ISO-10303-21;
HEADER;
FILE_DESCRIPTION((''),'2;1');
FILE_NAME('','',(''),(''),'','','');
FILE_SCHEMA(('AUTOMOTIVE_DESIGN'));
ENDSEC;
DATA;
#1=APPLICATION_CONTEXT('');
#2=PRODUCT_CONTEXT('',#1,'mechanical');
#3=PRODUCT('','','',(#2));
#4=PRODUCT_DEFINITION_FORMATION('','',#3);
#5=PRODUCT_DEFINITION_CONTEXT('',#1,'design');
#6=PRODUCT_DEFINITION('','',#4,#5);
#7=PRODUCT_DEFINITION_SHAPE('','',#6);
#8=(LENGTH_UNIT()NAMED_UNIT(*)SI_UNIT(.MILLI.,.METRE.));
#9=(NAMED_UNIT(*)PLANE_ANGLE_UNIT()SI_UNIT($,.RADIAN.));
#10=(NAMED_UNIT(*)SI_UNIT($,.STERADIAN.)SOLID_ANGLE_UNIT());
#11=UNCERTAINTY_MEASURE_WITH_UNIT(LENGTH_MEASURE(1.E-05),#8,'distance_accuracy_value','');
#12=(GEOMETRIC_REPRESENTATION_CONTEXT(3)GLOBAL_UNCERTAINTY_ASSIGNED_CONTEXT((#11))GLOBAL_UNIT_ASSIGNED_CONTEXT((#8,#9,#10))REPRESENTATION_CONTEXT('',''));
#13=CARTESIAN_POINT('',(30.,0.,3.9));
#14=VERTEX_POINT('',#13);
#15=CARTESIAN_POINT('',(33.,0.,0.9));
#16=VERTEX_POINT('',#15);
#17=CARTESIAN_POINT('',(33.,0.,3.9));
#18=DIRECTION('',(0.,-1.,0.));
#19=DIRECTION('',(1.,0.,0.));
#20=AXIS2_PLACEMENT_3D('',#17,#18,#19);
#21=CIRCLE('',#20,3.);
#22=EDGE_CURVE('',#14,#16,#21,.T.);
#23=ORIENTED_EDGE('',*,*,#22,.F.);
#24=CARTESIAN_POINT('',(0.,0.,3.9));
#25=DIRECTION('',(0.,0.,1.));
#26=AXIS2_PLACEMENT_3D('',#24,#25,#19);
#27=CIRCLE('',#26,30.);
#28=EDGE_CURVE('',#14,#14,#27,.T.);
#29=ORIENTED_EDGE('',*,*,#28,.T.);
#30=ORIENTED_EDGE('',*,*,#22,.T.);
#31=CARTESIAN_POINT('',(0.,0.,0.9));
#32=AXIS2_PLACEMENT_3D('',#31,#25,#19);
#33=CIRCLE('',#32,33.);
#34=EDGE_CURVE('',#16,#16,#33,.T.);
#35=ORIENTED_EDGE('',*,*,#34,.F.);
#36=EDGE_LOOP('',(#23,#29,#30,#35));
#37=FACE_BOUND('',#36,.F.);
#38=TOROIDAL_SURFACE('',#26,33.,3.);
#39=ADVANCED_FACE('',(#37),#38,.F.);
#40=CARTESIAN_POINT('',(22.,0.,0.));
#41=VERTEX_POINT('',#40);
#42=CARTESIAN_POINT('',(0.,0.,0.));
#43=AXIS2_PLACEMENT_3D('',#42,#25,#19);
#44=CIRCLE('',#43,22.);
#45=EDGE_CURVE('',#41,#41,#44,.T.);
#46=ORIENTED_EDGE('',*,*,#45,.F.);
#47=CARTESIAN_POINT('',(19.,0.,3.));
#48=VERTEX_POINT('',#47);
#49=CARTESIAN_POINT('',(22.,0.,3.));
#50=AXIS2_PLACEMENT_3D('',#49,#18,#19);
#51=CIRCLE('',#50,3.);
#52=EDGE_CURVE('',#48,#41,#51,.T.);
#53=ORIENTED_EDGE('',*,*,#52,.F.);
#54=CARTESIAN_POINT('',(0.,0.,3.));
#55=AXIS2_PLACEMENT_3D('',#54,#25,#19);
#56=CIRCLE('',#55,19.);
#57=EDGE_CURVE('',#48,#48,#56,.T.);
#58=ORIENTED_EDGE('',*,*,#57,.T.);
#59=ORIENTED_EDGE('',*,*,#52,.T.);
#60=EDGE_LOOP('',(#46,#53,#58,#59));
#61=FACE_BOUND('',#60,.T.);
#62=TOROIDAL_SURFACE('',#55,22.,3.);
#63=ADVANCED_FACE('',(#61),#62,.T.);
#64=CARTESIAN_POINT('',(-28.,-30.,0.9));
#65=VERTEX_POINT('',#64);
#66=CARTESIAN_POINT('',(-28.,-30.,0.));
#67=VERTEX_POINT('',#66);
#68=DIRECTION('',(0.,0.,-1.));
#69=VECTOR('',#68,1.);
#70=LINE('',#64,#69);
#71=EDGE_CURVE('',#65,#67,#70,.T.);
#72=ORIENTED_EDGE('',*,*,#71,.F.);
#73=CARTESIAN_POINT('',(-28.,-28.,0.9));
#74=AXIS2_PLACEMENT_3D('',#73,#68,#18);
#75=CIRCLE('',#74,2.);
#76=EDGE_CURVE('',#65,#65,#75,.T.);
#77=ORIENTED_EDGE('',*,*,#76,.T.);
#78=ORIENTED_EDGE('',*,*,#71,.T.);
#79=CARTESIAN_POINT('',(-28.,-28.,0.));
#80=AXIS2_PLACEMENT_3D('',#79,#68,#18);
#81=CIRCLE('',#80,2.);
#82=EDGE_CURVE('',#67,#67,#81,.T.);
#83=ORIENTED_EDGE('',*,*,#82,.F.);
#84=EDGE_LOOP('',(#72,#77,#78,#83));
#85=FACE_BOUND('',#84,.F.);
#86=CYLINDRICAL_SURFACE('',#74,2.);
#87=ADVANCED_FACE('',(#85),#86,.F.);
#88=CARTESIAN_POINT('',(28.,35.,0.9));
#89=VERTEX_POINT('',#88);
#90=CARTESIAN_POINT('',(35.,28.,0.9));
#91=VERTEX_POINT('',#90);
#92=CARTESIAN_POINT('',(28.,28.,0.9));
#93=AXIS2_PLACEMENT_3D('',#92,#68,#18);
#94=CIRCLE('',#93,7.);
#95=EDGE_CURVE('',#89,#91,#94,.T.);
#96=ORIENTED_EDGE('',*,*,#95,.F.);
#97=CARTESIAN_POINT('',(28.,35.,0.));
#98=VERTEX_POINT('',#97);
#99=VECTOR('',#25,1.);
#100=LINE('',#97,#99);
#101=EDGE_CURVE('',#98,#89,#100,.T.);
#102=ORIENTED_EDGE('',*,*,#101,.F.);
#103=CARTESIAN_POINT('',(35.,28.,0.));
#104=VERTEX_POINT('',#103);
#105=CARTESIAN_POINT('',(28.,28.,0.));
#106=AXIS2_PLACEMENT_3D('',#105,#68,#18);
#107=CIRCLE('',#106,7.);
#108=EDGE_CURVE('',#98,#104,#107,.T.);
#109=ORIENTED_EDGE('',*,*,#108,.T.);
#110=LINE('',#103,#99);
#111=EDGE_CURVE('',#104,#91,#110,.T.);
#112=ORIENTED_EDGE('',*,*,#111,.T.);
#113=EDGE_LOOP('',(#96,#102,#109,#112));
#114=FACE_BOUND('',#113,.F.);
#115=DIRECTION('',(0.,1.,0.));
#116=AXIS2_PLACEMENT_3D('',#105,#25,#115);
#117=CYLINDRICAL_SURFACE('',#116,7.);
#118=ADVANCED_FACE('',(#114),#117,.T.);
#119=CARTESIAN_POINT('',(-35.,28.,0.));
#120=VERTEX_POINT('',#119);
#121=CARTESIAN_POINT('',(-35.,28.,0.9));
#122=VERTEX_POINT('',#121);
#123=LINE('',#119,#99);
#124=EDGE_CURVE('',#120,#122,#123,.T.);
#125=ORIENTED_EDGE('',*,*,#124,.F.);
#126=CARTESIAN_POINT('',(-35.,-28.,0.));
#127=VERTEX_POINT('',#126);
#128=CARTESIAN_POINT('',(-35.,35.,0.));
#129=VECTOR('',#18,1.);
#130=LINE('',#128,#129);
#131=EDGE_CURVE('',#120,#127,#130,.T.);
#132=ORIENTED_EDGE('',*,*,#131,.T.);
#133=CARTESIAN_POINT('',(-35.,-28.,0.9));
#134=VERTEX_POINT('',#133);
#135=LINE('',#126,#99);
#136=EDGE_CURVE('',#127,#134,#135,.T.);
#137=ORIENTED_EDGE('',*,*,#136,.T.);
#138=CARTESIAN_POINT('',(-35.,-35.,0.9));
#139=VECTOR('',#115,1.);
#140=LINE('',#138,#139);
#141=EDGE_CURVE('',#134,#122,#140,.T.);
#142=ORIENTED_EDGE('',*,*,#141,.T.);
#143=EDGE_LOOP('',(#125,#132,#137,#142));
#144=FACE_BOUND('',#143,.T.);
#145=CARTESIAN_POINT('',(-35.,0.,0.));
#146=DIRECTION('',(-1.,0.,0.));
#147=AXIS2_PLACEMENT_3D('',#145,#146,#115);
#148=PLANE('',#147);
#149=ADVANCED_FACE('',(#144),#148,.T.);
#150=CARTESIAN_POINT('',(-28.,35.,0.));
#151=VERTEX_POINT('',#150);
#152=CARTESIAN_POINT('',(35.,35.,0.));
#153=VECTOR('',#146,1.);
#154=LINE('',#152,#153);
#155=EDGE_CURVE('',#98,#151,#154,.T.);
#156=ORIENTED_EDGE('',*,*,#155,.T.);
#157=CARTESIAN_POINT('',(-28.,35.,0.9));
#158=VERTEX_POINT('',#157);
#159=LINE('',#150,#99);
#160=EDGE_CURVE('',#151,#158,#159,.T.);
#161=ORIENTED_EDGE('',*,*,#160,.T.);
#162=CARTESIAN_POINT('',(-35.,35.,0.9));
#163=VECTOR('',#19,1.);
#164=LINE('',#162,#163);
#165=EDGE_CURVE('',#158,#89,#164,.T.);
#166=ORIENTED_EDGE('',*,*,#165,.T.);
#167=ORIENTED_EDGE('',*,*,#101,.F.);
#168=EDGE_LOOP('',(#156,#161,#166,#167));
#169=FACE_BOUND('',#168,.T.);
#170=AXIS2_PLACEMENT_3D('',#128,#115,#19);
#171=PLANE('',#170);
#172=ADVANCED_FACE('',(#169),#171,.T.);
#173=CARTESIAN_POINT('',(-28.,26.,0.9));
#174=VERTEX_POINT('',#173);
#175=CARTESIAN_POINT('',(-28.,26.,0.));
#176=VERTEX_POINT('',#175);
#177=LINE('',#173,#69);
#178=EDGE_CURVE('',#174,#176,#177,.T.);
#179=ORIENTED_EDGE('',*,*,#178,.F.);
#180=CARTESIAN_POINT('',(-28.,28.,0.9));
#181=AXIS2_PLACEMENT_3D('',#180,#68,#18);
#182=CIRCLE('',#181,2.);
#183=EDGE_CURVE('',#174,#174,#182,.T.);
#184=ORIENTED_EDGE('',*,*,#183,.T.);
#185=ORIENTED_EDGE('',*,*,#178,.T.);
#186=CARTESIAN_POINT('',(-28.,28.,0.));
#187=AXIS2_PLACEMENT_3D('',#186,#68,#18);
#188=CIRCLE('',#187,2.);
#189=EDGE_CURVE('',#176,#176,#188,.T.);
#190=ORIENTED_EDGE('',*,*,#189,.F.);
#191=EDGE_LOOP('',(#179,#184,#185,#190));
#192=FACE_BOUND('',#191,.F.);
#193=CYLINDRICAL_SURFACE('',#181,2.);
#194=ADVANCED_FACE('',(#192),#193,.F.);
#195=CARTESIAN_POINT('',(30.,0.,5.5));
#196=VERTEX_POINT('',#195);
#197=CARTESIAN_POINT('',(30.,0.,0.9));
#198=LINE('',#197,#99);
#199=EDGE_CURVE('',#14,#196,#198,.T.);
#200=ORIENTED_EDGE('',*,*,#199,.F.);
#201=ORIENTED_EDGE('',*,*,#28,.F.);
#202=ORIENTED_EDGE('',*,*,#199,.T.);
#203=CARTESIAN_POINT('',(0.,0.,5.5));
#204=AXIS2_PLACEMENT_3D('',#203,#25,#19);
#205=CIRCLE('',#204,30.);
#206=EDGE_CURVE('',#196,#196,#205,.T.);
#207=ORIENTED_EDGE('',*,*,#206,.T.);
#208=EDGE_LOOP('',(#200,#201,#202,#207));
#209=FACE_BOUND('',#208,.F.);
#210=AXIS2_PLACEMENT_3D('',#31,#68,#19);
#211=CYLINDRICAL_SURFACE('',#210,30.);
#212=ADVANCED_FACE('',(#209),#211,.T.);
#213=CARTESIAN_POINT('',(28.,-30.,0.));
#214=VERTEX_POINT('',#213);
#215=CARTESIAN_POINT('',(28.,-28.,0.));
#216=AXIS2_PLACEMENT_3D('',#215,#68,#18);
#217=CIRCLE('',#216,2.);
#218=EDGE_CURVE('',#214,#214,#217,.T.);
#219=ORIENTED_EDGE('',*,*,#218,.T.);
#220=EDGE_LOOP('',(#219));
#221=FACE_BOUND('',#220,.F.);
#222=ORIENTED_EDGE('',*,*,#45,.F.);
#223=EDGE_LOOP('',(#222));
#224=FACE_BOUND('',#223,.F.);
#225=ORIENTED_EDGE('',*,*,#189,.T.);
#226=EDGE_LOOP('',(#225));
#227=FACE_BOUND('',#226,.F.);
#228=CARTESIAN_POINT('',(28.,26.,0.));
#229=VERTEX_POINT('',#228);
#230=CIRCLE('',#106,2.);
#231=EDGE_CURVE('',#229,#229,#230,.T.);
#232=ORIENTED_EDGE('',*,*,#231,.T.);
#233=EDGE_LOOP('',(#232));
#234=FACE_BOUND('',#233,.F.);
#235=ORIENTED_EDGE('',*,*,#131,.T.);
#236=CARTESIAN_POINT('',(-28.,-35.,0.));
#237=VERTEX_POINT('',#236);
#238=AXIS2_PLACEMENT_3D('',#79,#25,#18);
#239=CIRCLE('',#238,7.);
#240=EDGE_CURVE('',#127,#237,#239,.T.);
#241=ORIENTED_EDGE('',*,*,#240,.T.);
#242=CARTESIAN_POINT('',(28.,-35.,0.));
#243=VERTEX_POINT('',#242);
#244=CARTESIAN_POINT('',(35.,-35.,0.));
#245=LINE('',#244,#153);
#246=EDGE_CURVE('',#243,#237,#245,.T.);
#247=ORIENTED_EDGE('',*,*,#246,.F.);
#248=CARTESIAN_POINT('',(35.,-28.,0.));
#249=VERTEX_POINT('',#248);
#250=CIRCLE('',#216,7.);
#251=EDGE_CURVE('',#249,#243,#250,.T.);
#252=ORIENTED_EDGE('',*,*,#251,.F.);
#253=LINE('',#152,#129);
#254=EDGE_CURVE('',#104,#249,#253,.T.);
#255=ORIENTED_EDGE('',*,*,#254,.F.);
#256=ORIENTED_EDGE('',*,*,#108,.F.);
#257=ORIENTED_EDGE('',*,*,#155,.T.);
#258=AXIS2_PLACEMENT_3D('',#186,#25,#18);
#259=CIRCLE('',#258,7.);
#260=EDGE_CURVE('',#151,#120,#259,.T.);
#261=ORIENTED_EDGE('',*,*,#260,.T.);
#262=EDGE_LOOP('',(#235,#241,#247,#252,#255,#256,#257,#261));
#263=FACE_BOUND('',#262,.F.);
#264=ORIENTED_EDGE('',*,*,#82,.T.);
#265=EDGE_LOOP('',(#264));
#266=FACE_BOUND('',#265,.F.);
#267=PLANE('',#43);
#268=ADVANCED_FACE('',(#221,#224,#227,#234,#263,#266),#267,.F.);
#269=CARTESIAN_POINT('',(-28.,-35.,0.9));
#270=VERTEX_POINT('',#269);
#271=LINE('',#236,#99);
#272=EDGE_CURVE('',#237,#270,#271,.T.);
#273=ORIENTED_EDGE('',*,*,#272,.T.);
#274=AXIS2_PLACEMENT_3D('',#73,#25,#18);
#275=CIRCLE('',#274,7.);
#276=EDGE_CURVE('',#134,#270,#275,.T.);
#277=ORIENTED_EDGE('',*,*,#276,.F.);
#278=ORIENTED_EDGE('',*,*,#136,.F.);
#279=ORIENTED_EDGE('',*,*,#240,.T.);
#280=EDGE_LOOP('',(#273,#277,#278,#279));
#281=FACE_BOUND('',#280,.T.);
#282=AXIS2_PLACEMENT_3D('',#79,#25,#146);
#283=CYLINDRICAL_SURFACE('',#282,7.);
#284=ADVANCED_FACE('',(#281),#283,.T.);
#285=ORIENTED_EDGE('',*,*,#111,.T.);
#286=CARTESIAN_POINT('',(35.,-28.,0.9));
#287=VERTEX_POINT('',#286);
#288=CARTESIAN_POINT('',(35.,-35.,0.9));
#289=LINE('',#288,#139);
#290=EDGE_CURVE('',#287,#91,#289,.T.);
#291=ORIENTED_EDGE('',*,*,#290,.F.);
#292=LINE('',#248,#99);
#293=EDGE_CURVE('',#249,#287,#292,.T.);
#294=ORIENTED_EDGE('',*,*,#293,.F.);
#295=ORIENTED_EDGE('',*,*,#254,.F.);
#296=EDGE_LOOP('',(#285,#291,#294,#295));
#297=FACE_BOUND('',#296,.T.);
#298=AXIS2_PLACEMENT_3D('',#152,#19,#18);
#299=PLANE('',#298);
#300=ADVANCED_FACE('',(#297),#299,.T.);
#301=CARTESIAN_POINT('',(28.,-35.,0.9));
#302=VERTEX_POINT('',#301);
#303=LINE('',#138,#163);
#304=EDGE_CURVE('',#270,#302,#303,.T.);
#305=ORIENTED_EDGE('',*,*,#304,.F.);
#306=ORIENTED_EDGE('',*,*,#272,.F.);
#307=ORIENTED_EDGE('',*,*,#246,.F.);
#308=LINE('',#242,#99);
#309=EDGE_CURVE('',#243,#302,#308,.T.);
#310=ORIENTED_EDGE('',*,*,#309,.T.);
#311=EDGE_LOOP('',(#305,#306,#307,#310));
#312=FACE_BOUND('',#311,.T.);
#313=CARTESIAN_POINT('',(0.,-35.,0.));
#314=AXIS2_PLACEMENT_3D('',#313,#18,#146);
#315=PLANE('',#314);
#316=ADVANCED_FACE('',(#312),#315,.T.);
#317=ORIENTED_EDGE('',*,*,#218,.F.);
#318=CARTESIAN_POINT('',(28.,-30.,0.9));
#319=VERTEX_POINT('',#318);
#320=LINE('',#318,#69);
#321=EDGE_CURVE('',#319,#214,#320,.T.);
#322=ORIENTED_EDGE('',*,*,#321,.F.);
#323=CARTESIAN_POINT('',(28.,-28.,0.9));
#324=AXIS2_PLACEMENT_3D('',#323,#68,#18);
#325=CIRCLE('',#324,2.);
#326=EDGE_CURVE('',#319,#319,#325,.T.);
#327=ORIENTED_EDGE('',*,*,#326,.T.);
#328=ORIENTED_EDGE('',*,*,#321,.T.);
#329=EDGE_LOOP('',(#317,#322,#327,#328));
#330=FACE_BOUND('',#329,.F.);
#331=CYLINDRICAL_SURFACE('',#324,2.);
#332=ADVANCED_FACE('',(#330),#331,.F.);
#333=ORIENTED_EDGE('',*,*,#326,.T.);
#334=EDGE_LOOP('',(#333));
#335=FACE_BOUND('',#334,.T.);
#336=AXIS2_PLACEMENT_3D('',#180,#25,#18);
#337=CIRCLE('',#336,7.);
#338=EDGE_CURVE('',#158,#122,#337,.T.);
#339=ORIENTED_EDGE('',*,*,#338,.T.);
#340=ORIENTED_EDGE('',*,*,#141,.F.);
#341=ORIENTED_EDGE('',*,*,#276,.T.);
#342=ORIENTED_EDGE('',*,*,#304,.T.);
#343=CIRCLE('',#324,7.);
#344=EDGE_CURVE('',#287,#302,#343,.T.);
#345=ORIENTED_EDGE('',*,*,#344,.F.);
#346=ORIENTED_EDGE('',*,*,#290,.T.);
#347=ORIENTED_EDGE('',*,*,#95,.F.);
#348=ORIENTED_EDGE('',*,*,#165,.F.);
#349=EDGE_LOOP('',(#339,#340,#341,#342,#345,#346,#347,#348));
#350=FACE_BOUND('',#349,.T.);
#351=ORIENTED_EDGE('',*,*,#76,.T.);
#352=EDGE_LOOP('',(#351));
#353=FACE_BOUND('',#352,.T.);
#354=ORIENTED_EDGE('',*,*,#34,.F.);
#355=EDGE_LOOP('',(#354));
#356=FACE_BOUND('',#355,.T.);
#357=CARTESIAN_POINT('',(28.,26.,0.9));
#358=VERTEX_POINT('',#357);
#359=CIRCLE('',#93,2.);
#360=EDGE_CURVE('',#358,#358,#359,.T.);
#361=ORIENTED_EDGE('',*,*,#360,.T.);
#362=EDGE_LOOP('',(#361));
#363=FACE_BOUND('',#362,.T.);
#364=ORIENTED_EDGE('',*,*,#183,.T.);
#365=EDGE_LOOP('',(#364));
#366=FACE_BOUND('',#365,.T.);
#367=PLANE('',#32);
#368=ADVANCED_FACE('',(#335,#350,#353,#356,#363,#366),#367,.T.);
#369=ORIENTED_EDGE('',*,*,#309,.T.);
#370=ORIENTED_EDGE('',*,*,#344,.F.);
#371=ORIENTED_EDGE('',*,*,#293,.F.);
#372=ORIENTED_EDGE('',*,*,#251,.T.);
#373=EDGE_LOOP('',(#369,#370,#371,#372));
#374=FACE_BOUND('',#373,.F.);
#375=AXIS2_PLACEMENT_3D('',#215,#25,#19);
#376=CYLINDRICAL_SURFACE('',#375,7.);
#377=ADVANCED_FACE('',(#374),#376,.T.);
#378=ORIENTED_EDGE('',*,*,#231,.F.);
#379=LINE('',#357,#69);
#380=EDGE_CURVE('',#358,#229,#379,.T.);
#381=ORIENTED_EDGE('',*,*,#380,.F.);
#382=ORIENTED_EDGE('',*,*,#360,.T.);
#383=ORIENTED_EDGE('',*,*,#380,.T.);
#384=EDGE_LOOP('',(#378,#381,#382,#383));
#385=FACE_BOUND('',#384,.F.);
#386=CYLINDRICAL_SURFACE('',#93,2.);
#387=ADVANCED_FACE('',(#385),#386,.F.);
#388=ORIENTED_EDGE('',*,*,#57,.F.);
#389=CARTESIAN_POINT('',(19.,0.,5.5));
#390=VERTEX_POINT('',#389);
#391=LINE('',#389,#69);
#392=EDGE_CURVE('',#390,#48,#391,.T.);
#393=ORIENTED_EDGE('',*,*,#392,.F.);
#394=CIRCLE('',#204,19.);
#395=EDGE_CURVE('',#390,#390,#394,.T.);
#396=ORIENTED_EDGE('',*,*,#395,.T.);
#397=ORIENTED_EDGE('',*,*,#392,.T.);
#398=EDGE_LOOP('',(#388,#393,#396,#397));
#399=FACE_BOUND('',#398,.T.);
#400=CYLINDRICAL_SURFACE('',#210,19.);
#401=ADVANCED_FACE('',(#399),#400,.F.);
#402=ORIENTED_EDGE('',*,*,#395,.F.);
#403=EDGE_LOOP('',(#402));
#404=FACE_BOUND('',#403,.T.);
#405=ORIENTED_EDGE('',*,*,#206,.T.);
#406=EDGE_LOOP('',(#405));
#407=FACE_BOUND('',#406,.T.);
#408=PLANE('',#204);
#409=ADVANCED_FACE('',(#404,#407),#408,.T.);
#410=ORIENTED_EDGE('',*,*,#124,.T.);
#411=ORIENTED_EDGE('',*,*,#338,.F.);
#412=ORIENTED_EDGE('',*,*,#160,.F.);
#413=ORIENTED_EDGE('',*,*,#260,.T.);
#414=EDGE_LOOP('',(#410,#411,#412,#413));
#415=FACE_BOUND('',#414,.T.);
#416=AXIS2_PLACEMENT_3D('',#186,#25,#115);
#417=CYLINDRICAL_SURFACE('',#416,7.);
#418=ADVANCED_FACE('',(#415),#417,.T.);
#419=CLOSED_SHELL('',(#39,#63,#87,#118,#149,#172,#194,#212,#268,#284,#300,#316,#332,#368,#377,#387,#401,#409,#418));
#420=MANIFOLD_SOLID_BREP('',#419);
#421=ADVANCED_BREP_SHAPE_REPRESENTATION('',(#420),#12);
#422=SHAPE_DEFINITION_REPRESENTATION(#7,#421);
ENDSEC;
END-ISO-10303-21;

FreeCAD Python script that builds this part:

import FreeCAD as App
import Part
import Sketcher

V = App.Vector


def edges_at(feature, points):
    """Names of the edges that pass closest to the given points."""
    edges = feature.Shape.Edges
    near = lambda p: min(range(len(edges)), key=lambda i: edges[i].distToShape(Part.Vertex(*p))[0])
    return sorted({f"Edge{near(p) + 1}" for p in points})

doc = App.newDocument("Part")
body = doc.addObject("PartDesign::Body", "Body")

sketch1 = doc.addObject("Sketcher::SketchObject", "Sketch")
body.addObject(sketch1)
sketch1.AttachmentSupport = (doc.XY_Plane, [""])
sketch1.MapMode = "FlatFace"
sketch1.addGeometry([
    Part.LineSegment(V(-35, 35, 0), V(-35, -35, 0)),
    Part.LineSegment(V(-35, -35, 0), V(35, -35, 0)),
    Part.LineSegment(V(35, -35, 0), V(35, 35, 0)),
    Part.LineSegment(V(35, 35, 0), V(-35, 35, 0)),
    Part.Circle(V(0, 0, 0), V(0, 0, 1), 19),
], False)
sketch1.addConstraint([
    Sketcher.Constraint("Coincident", 0, 2, 1, 1),
    Sketcher.Constraint("Coincident", 1, 2, 2, 1),
    Sketcher.Constraint("Coincident", 2, 2, 3, 1),
    Sketcher.Constraint("Coincident", 3, 2, 0, 1),
    Sketcher.Constraint("Vertical", 0),
    Sketcher.Constraint("Horizontal", 1),
    Sketcher.Constraint("Vertical", 2),
    Sketcher.Constraint("Horizontal", 3),
    Sketcher.Constraint("Coincident", 4, 3, -1, 1),
    Sketcher.Constraint("Symmetric", 0, 2, 2, 2, -1, 1),
    Sketcher.Constraint("Equal", 3, 0),
    Sketcher.Constraint("Diameter", 4, 38.0),
    Sketcher.Constraint("DistanceX", 1, 1, 1, 2, 70.0),
])
pad1 = doc.addObject("PartDesign::Pad", "Pad")
body.addObject(pad1)
pad1.Profile = sketch1
pad1.Length = 0.9
doc.recompute()

fillet = doc.addObject("PartDesign::Fillet", "Fillet")
body.addObject(fillet)
fillet.Base = (pad1, edges_at(pad1, [
    (-35, -35, 0.45),
    (35, -35, 0.45),
    (-35, 35, 0.45),
    (35, 35, 0.45),
]))
fillet.Radius = 7

sketch2 = doc.addObject("Sketcher::SketchObject", "Sketch001")
body.addObject(sketch2)
sketch2.AttachmentSupport = (doc.XY_Plane, [""])
sketch2.MapMode = "FlatFace"
sketch2.AttachmentOffset = App.Placement(V(0, 0, 0.9), App.Rotation())
sketch2.addGeometry([
    Part.Circle(V(-28, -28, 0), V(0, 0, 1), 2),
    Part.Circle(V(28, -28, 0), V(0, 0, 1), 2),
    Part.Circle(V(28, 28, 0), V(0, 0, 1), 2),
    Part.Circle(V(-28, 28, 0), V(0, 0, 1), 2),
], False)
sketch2.addConstraint([
    Sketcher.Constraint("Equal", 0, 1),
    Sketcher.Constraint("Equal", 1, 2),
    Sketcher.Constraint("Equal", 2, 3),
    Sketcher.Constraint("Symmetric", 0, 3, 2, 3, -1, 1),
    Sketcher.Constraint("Symmetric", 1, 3, 3, 3, -1, 1),
    Sketcher.Constraint("Symmetric", 0, 3, 1, 3, -2),
    Sketcher.Constraint("Diameter", 0, 4.0),
    Sketcher.Constraint("DistanceX", 0, 3, -1, 1, 28.0),
    Sketcher.Constraint("DistanceY", 0, 3, -1, 1, 28.0),
])
doc.recompute()
hole = doc.addObject("PartDesign::Hole", "Hole")
body.addObject(hole)
hole.Profile = sketch2
hole.ThreadType = "None"
hole.Diameter = 4
hole.DepthType = "Dimension"
hole.Depth = 8
hole.DrillPoint = "Angled"
hole.DrillPointAngle = 118

sketch3 = doc.addObject("Sketcher::SketchObject", "Sketch002")
body.addObject(sketch3)
sketch3.AttachmentSupport = (doc.XY_Plane, [""])
sketch3.MapMode = "FlatFace"
sketch3.AttachmentOffset = App.Placement(V(0, 0, 0.9), App.Rotation())
sketch3.addGeometry([
    Part.Circle(V(0, 0, 0), V(0, 0, 1), 30),
    Part.Circle(V(0, 0, 0), V(0, 0, 1), 19),
], False)
sketch3.addConstraint([
    Sketcher.Constraint("Coincident", 0, 3, -1, 1),
    Sketcher.Constraint("Coincident", 1, 3, -1, 1),
    Sketcher.Constraint("Diameter", 0, 60.0),
    Sketcher.Constraint("Diameter", 1, 38.0),
])
pad2 = doc.addObject("PartDesign::Pad", "Pad001")
body.addObject(pad2)
pad2.Profile = sketch3
pad2.Length = 4.6
doc.recompute()

fillet2 = doc.addObject("PartDesign::Fillet", "Fillet001")
body.addObject(fillet2)
fillet2.Base = (pad2, edges_at(pad2, [(-19, 0, 0), (-30, 0, 0.9)]))
fillet2.Radius = 3

doc.recompute()
